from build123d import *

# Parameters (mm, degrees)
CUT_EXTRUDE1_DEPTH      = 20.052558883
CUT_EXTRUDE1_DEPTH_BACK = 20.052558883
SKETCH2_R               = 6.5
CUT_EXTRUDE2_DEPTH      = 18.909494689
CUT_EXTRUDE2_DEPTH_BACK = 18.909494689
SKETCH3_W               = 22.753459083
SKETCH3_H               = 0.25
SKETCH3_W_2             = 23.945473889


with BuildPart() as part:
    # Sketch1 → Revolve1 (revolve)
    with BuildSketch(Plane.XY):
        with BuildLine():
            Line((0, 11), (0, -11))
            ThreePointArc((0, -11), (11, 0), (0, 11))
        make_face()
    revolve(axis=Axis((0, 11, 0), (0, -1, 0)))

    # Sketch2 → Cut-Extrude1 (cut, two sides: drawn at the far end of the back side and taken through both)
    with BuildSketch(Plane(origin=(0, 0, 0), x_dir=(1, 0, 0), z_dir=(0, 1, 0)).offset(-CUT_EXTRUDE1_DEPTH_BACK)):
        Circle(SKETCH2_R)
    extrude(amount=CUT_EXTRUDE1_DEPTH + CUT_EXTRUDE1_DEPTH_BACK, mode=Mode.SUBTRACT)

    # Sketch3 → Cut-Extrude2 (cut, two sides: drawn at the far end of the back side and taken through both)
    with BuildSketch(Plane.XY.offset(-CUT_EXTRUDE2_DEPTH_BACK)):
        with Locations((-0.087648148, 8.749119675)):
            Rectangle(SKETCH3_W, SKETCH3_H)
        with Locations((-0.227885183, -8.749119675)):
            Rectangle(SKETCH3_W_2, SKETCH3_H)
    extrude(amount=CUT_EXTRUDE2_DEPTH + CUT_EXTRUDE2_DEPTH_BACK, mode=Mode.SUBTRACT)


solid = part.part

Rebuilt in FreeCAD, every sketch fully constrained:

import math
import FreeCAD as App
import Part
import Sketcher
from FreeCAD import Vector


def add_polygon(sketch, points):
    """Adds a closed chain of lines whose ends are joined by coincident constraints."""
    first, n = sketch.GeometryCount, len(points)
    for a, b in zip(points, points[1:] + points[:1]):
        sketch.addGeometry(Part.LineSegment(App.Vector(*a, 0), App.Vector(*b, 0)), False)
    for i in range(n):
        sketch.addConstraint(Sketcher.Constraint("Coincident", first + i, 2, first + (i + 1) % n, 1))

doc = App.newDocument("Part")
body = doc.addObject("PartDesign::Body", "Body")

# Sketch on XY plane
sketch1 = body.newObject("Sketcher::SketchObject", "Sketch")
sketch1.AttachmentSupport = (doc.getObject("XY_Plane"), [""])
sketch1.MapMode = "FlatFace"
sketch1.addGeometry([
    Part.LineSegment(Vector(0, 11, 0), Vector(0, -11, 0)),
    Part.ArcOfCircle(Part.Circle(Vector(0, 0, 0), Vector(0, 0, 1), 11), math.radians(-90), math.radians(90)),
], False)
sketch1.addConstraint([
    Sketcher.Constraint("Coincident", 0, 1, 1, 2),
    Sketcher.Constraint("Coincident", 1, 1, 0, 2),
    Sketcher.Constraint("Vertical", 0),
    Sketcher.Constraint("Coincident", 1, 3, -1, 1),
    Sketcher.Constraint("PointOnObject", 0, 1, -2),
    Sketcher.Constraint("Radius", 1, 11.0),
])
revolution = body.newObject("PartDesign::Revolution", "Revolution")
revolution.Profile = sketch1
revolution.ReferenceAxis = (sketch1, ["V_Axis"])
revolution.Angle = 360

# Sketch on XZ plane
sketch2 = body.newObject("Sketcher::SketchObject", "Sketch001")
sketch2.AttachmentSupport = (doc.getObject("XZ_Plane"), [""])
sketch2.MapMode = "FlatFace"
sketch2.addGeometry(Part.Circle(Vector(0, 0, 0), Vector(0, 0, 1), 6), False)
sketch2.addConstraint([
    Sketcher.Constraint("Coincident", 0, 3, -1, 1),
    Sketcher.Constraint("Diameter", 0, 13.0),
])
pocket1 = body.newObject("PartDesign::Pocket", "Pocket")
pocket1.Profile = sketch2
pocket1.Type = "ThroughAll"
pocket1.Midplane = True

# Sketch on XY plane
sketch3 = body.newObject("Sketcher::SketchObject", "Sketch002")
sketch3.AttachmentSupport = (doc.getObject("XY_Plane"), [""])
sketch3.MapMode = "FlatFace"
add_polygon(sketch3, [(-11.46, 8.87), (-11.46, 8.62), (11.29, 8.62), (11.29, 8.87)])  # lines 0-3
add_polygon(sketch3, [(-12.2, -8.62), (-12.2, -8.87), (11.74, -8.87), (11.74, -8.62)])  # lines 4-7
sketch3.addConstraint([
    Sketcher.Constraint("Vertical", 0),
    Sketcher.Constraint("Horizontal", 1),
    Sketcher.Constraint("Vertical", 2),
    Sketcher.Constraint("Horizontal", 3),
    Sketcher.Constraint("Vertical", 4),
    Sketcher.Constraint("Horizontal", 5),
    Sketcher.Constraint("Vertical", 6),
    Sketcher.Constraint("Horizontal", 7),
    Sketcher.Constraint("Equal", 2, 4),
    Sketcher.Constraint("DistanceY", 0, 2, 0, 1, 0.25),
    Sketcher.Constraint("DistanceX", 1, 1, 1, 2, 22.753459),
    Sketcher.Constraint("DistanceX", 5, 1, 5, 2, 23.945474),
    Sketcher.Constraint("DistanceY", -1, 1, 0, 2, 8.62412),
    Sketcher.Constraint("DistanceX", -1, 1, 1, 2, 11.289081),
    Sketcher.Constraint("DistanceY", 4, 2, -1, 1, 8.87412),
    Sketcher.Constraint("DistanceX", -1, 1, 5, 2, 11.744852),
])
pocket2 = body.newObject("PartDesign::Pocket", "Pocket001")
pocket2.Profile = sketch3
pocket2.Type = "ThroughAll"
pocket2.Midplane = True

doc.recompute()
